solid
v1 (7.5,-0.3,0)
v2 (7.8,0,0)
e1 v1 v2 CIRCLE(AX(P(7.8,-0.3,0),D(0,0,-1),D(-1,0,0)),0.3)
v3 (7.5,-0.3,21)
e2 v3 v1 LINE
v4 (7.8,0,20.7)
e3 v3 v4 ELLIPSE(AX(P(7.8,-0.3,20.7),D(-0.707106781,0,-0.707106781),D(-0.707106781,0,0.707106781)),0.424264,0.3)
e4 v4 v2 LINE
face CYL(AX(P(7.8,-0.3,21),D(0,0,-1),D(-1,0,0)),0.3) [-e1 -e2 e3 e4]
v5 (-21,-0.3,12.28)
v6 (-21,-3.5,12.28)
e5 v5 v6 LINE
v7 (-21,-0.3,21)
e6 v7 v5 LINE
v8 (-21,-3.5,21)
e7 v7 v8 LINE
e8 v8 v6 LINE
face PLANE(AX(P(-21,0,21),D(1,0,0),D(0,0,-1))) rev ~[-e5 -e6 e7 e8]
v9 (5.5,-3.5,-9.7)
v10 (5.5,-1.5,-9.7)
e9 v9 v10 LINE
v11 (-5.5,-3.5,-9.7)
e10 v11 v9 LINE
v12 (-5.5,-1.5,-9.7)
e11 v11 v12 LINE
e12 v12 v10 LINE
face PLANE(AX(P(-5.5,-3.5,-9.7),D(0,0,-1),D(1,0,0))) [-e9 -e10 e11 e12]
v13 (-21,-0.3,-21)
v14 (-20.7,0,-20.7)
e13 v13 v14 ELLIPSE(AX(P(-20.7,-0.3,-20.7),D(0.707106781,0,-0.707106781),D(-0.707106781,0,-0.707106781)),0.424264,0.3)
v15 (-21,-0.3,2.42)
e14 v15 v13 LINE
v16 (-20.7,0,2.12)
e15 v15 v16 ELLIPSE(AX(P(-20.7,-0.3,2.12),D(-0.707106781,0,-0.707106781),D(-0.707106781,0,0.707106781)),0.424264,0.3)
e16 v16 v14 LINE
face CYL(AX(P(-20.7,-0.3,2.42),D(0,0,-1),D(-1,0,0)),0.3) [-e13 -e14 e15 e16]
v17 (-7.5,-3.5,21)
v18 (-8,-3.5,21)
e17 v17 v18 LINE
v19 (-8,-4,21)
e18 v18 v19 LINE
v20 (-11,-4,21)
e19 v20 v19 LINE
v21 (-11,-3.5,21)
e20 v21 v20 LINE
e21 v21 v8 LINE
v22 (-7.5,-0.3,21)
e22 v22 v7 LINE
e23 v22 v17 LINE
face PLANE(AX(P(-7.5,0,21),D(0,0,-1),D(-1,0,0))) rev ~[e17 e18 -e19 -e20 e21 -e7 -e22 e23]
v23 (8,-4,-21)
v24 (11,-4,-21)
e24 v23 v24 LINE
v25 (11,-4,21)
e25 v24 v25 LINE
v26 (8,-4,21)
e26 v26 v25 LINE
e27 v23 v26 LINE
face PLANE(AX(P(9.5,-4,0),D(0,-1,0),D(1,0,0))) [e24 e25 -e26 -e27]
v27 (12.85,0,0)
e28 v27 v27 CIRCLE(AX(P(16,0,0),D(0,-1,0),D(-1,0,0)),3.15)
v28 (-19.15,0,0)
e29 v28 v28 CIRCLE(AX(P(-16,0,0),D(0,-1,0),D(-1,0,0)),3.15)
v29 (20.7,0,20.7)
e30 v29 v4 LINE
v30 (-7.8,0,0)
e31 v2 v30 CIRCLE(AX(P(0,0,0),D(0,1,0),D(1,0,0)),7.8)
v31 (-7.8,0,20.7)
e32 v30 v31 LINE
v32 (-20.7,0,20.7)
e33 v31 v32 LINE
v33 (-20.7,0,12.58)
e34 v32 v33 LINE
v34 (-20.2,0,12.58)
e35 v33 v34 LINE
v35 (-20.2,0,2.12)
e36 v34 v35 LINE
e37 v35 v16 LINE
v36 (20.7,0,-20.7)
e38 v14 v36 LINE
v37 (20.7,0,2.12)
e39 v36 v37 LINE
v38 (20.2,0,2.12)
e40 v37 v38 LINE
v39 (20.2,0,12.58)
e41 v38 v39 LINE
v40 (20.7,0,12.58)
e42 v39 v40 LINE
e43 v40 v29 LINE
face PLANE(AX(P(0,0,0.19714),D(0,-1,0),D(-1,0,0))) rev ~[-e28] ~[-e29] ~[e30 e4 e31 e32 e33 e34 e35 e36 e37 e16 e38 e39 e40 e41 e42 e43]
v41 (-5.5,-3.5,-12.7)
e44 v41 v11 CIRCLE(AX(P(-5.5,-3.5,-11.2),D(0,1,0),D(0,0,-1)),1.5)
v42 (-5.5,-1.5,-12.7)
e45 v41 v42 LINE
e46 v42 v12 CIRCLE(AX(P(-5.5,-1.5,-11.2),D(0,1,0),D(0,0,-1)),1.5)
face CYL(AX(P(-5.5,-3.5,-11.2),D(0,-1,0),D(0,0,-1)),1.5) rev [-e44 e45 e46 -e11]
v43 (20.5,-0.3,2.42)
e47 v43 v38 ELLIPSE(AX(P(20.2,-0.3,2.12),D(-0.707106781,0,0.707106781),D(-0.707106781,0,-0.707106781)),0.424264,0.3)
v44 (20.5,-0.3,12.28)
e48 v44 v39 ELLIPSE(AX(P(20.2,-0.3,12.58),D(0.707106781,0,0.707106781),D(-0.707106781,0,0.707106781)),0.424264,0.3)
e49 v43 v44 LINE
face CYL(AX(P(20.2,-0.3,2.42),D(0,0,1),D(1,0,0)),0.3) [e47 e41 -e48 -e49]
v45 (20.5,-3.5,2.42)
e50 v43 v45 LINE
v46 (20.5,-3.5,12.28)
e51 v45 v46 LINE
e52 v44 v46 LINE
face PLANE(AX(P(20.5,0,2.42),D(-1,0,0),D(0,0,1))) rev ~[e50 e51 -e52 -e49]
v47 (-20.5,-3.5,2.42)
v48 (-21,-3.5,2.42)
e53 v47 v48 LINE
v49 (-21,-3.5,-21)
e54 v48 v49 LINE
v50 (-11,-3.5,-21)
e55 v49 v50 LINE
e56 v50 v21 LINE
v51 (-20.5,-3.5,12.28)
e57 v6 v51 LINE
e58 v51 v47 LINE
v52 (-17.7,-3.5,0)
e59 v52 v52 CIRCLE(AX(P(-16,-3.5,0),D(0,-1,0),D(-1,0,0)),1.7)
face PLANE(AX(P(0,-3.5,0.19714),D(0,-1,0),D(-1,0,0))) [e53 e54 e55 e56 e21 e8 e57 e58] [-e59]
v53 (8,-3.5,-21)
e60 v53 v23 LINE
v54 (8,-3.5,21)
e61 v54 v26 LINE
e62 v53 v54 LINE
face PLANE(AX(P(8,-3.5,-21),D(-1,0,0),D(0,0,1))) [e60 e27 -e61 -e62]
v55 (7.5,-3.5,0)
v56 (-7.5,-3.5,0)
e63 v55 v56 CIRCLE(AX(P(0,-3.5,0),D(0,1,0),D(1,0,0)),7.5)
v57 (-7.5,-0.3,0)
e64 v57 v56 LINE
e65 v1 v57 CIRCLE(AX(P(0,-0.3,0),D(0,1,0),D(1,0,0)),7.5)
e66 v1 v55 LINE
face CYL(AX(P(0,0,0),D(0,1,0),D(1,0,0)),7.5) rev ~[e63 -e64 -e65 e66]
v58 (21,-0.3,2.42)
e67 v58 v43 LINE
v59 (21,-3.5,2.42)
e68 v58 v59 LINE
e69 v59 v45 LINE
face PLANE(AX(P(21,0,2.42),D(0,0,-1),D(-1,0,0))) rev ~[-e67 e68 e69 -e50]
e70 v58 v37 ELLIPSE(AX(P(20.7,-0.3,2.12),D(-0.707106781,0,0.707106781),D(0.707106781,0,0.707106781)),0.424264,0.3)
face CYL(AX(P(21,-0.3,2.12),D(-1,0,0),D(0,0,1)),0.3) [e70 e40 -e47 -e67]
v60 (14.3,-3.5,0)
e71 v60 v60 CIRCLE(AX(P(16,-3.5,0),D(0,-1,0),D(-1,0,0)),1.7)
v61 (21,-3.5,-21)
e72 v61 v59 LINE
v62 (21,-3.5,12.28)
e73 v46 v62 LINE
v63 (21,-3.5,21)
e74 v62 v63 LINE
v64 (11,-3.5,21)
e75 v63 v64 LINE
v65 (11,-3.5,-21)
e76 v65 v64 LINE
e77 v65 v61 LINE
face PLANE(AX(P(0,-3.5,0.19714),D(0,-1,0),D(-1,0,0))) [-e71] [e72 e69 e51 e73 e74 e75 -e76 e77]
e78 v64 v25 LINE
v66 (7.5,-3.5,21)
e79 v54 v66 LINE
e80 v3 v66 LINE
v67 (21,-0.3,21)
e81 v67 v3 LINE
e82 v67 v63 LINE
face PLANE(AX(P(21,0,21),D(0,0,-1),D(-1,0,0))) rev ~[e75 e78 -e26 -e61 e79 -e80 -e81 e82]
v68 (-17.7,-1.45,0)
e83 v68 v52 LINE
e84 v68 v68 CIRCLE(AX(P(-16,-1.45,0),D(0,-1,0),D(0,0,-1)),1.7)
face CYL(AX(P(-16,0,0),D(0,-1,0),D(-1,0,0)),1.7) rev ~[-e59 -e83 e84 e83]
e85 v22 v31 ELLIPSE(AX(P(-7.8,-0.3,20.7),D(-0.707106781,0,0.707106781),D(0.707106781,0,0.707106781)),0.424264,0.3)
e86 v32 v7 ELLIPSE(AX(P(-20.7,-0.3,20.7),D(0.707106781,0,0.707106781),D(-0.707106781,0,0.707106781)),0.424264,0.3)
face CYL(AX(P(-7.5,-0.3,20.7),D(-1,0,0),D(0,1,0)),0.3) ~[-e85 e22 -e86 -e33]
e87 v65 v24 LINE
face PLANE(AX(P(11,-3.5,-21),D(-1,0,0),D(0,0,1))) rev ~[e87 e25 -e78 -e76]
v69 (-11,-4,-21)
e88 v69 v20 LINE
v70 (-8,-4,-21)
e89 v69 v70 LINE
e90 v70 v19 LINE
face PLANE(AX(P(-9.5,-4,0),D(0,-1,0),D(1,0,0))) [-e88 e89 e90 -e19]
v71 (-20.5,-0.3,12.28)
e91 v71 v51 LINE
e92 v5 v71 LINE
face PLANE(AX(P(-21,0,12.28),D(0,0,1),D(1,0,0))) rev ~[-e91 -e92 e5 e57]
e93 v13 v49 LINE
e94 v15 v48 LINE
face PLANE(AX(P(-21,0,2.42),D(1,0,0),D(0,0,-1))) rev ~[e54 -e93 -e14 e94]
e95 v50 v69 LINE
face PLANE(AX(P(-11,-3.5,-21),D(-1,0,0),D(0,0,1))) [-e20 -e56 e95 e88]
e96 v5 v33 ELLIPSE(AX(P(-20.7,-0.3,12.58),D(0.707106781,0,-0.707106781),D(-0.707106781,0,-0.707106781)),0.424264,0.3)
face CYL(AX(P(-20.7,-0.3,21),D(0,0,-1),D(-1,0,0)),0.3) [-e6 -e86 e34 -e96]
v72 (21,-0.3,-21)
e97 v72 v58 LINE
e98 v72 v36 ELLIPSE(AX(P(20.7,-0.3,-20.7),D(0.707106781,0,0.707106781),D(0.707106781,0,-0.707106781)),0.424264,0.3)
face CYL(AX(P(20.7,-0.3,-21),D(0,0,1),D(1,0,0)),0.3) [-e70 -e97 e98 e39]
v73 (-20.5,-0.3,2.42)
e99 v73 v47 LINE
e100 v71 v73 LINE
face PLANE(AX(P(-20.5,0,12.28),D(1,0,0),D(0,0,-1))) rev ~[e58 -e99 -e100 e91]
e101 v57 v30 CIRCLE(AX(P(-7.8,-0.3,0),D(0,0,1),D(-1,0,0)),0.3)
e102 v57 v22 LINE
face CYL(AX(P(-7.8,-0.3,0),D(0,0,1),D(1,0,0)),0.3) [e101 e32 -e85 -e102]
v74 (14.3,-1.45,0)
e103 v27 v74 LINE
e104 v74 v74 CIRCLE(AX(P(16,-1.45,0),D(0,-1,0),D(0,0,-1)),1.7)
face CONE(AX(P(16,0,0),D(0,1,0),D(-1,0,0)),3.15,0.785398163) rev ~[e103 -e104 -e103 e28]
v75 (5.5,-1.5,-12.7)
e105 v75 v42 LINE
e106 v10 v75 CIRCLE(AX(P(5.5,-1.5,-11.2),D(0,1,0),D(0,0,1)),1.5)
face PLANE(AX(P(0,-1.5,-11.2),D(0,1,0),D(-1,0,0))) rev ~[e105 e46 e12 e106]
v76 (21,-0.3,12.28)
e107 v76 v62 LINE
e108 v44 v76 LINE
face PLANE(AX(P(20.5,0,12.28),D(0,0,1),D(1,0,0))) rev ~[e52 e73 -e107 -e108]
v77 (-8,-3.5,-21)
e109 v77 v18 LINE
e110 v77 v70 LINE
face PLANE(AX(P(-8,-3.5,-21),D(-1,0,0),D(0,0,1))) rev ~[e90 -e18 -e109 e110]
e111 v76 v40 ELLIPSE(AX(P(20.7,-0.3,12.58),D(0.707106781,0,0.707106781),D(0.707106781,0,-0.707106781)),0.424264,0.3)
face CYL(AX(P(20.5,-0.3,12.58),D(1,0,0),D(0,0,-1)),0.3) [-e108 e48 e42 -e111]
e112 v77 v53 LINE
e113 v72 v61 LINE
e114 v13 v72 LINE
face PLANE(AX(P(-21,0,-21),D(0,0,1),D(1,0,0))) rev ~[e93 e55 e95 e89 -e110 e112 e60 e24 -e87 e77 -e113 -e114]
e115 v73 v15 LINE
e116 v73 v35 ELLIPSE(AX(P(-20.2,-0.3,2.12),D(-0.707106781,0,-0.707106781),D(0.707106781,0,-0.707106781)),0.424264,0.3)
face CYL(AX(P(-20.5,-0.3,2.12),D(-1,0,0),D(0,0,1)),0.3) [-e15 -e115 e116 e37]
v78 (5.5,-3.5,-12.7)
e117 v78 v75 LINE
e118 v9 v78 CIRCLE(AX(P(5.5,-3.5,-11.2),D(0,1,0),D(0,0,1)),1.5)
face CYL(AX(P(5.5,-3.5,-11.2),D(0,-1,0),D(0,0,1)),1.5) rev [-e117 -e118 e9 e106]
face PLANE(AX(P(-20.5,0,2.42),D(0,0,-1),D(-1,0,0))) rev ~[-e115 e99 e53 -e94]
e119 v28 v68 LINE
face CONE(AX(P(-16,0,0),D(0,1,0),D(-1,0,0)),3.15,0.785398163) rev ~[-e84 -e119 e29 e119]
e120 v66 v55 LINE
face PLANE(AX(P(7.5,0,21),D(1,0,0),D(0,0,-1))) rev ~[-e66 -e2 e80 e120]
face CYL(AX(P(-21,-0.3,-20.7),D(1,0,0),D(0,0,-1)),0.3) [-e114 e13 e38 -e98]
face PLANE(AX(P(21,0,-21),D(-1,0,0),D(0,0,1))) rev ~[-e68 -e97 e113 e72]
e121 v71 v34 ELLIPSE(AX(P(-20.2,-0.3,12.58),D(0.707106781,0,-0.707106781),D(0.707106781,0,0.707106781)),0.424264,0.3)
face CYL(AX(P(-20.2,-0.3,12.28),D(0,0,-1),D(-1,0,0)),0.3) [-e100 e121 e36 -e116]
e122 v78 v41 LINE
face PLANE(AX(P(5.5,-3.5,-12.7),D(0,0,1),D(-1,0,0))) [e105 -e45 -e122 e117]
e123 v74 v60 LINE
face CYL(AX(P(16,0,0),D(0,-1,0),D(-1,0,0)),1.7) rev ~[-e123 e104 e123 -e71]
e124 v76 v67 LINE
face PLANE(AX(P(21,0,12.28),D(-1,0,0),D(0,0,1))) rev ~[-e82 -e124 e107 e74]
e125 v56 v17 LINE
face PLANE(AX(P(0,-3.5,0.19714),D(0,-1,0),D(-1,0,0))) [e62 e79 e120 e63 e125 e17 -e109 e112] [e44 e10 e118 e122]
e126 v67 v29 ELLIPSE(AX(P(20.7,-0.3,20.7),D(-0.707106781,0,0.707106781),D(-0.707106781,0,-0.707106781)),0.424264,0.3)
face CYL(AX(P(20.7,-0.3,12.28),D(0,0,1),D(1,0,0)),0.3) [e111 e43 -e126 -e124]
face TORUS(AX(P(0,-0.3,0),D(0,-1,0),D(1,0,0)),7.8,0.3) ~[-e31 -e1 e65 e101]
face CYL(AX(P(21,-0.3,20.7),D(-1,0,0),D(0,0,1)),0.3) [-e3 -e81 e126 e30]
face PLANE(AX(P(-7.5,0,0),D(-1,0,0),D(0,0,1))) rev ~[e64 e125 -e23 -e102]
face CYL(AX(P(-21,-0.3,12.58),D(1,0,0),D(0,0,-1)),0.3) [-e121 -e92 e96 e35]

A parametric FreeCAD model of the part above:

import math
import FreeCAD as App
import Part
import Sketcher
Q = App.Units.Quantity


def edges_at(feature, points):
    """Names of the edges that pass closest to the given points."""
    edges = feature.Shape.Edges
    near = lambda p: min(range(len(edges)), key=lambda i: edges[i].distToShape(Part.Vertex(*p))[0])
    return sorted({f"Edge{near(p) + 1}" for p in points})

doc = App.newDocument("Part")
params = doc.addObject("Spreadsheet::Sheet", "Params")
for row, (alias, value) in enumerate([
    ("sketch1_radius", "7.5 mm"),
    ("sketch1_width", "42 mm"),
    ("sketch1_height", "21 mm"),
    ("sketch1_width2", "0.5 mm"),
    ("sketch1_height2", "8.72 mm"),
    ("pad1_length", "3.5 mm"),
    ("sketch2_diameter", "3.4 mm"),
    ("hole_diameter", "3.4 mm"),
    ("hole_csink_diameter", "6.3 mm"),
    ("fillet_radius", "0.3 mm"),
    ("sketch3_width", "3 mm"),
    ("sketch3_height", "42 mm"),
    ("pad2_length", "0.5 mm"),
    ("sketch4_radius", "1.5 mm"),
    ("sketch4_width", "11 mm"),
    ("pocket1_length", "2 mm"),
], start=1):
    params.set(f"A{row}", alias)
    params.set(f"B{row}", "=" + value)
    params.setAlias(f"B{row}", alias)

body = doc.addObject("PartDesign::Body", "Body")

sketch1 = body.newObject("Sketcher::SketchObject", "Sketch")
sketch1.AttachmentSupport = (doc.getObject("XZ_Plane"), [""])
sketch1.MapMode = "FlatFace"
sketch1.addGeometry(Part.LineSegment(App.Vector(-7.5, 21, 0), App.Vector(-7.5, 0, 0)), False)
sketch1.addGeometry(Part.ArcOfCircle(Part.Circle(App.Vector(0, 0, 0), App.Vector(0, 0, 1), 7.5), math.radians(180), math.radians(360)), False)
sketch1.addGeometry(Part.LineSegment(App.Vector(7.5, 0, 0), App.Vector(7.5, 21, 0)), False)
sketch1.addGeometry(Part.LineSegment(App.Vector(7.5, 21, 0), App.Vector(21, 21, 0)), False)
sketch1.addGeometry(Part.LineSegment(App.Vector(21, 21, 0), App.Vector(21, 12.28, 0)), False)
sketch1.addGeometry(Part.LineSegment(App.Vector(21, 12.28, 0), App.Vector(20.5, 12.28, 0)), False)
sketch1.addGeometry(Part.LineSegment(App.Vector(20.5, 12.28, 0), App.Vector(20.5, 2.42, 0)), False)
sketch1.addGeometry(Part.LineSegment(App.Vector(20.5, 2.42, 0), App.Vector(21, 2.42, 0)), False)
sketch1.addGeometry(Part.LineSegment(App.Vector(21, 2.42, 0), App.Vector(21, -21, 0)), False)
sketch1.addGeometry(Part.LineSegment(App.Vector(21, -21, 0), App.Vector(-21, -21, 0)), False)
sketch1.addGeometry(Part.LineSegment(App.Vector(-21, -21, 0), App.Vector(-21, 2.42, 0)), False)
sketch1.addGeometry(Part.LineSegment(App.Vector(-21, 2.42, 0), App.Vector(-20.5, 2.42, 0)), False)
sketch1.addGeometry(Part.LineSegment(App.Vector(-20.5, 2.42, 0), App.Vector(-20.5, 12.28, 0)), False)
sketch1.addGeometry(Part.LineSegment(App.Vector(-20.5, 12.28, 0), App.Vector(-21, 12.28, 0)), False)
sketch1.addGeometry(Part.LineSegment(App.Vector(-21, 12.28, 0), App.Vector(-21, 21, 0)), False)
sketch1.addGeometry(Part.LineSegment(App.Vector(-21, 21, 0), App.Vector(-7.5, 21, 0)), False)
sketch1.addConstraint(Sketcher.Constraint("Tangent", 0, 2, 1, 1))
sketch1.addConstraint(Sketcher.Constraint("Tangent", 1, 2, 2, 1))
sketch1.addConstraint(Sketcher.Constraint("Coincident", 2, 2, 3, 1))
sketch1.addConstraint(Sketcher.Constraint("Coincident", 3, 2, 4, 1))
sketch1.addConstraint(Sketcher.Constraint("Coincident", 4, 2, 5, 1))
sketch1.addConstraint(Sketcher.Constraint("Coincident", 5, 2, 6, 1))
sketch1.addConstraint(Sketcher.Constraint("Coincident", 6, 2, 7, 1))
sketch1.addConstraint(Sketcher.Constraint("Coincident", 7, 2, 8, 1))
sketch1.addConstraint(Sketcher.Constraint("Coincident", 8, 2, 9, 1))
sketch1.addConstraint(Sketcher.Constraint("Coincident", 9, 2, 10, 1))
sketch1.addConstraint(Sketcher.Constraint("Coincident", 10, 2, 11, 1))
sketch1.addConstraint(Sketcher.Constraint("Coincident", 11, 2, 12, 1))
sketch1.addConstraint(Sketcher.Constraint("Coincident", 12, 2, 13, 1))
sketch1.addConstraint(Sketcher.Constraint("Coincident", 13, 2, 14, 1))
sketch1.addConstraint(Sketcher.Constraint("Coincident", 14, 2, 15, 1))
sketch1.addConstraint(Sketcher.Constraint("Coincident", 15, 2, 0, 1))
sketch1.addConstraint(Sketcher.Constraint("Vertical", 0))
sketch1.addConstraint(Sketcher.Constraint("Vertical", 2))
sketch1.addConstraint(Sketcher.Constraint("Horizontal", 3))
sketch1.addConstraint(Sketcher.Constraint("Vertical", 4))
sketch1.addConstraint(Sketcher.Constraint("Horizontal", 5))
sketch1.addConstraint(Sketcher.Constraint("Vertical", 6))
sketch1.addConstraint(Sketcher.Constraint("Horizontal", 7))
sketch1.addConstraint(Sketcher.Constraint("Vertical", 8))
sketch1.addConstraint(Sketcher.Constraint("Horizontal", 9))
sketch1.addConstraint(Sketcher.Constraint("Vertical", 10))
sketch1.addConstraint(Sketcher.Constraint("Horizontal", 11))
sketch1.addConstraint(Sketcher.Constraint("Vertical", 12))
sketch1.addConstraint(Sketcher.Constraint("Horizontal", 13))
sketch1.addConstraint(Sketcher.Constraint("Vertical", 14))
sketch1.addConstraint(Sketcher.Constraint("Horizontal", 15))
sketch1.addConstraint(Sketcher.Constraint("Coincident", 1, 3, -1, 1))
sketch1.addConstraint(Sketcher.Constraint("Symmetric", 3, 2, 9, 2, -1, 1))
sketch1.addConstraint(Sketcher.Constraint("Symmetric", 8, 2, 14, 2, -1, 1))
sketch1.addConstraint(Sketcher.Constraint("Symmetric", 7, 2, 10, 2, -2))
sketch1.addConstraint(Sketcher.Constraint("Symmetric", 5, 2, 12, 2, -2))
sketch1.addConstraint(Sketcher.Constraint("Radius", 1, Q("7.5 mm")))
sketch1.addConstraint(Sketcher.Constraint("DistanceX", 9, 2, 9, 1, Q("42 mm")))
sketch1.addConstraint(Sketcher.Constraint("DistanceY", 0, 2, 0, 1, Q("21 mm")))
sketch1.addConstraint(Sketcher.Constraint("DistanceX", 5, 2, 5, 1, Q("0.5 mm")))
sketch1.addConstraint(Sketcher.Constraint("DistanceY", 4, 2, 4, 1, Q("8.72 mm")))
sketch1.addConstraint(Sketcher.Constraint("DistanceY", 6, 2, 6, 1, Q("9.86 mm")))
sketch1.setExpression("Constraints[36]", "Params.sketch1_radius")
sketch1.setExpression("Constraints[37]", "Params.sketch1_width")
sketch1.setExpression("Constraints[38]", "Params.sketch1_height")
sketch1.setExpression("Constraints[39]", "Params.sketch1_width2")
sketch1.setExpression("Constraints[40]", "Params.sketch1_height2")
pad1 = body.newObject("PartDesign::Pad", "Pad")
pad1.Profile = sketch1
pad1.setExpression("Length", "Params.pad1_length")

sketch2 = body.newObject("Sketcher::SketchObject", "Sketch001")
sketch2.AttachmentSupport = (doc.getObject("XZ_Plane"), [""])
sketch2.MapMode = "FlatFace"
sketch2.addGeometry(Part.Circle(App.Vector(-16, 0, 0), App.Vector(0, 0, 1), 1.7), False)
sketch2.addGeometry(Part.Circle(App.Vector(16, 0, 0), App.Vector(0, 0, 1), 1.7), False)
sketch2.addConstraint(Sketcher.Constraint("Equal", 0, 1))
sketch2.addConstraint(Sketcher.Constraint("Symmetric", 0, 3, 1, 3, -1, 1))
sketch2.addConstraint(Sketcher.Constraint("PointOnObject", 0, 3, -1))
sketch2.addConstraint(Sketcher.Constraint("Diameter", 0, Q("3.4 mm")))
sketch2.addConstraint(Sketcher.Constraint("DistanceX", 0, 3, -1, 1, Q("16 mm")))
sketch2.setExpression("Constraints[3]", "Params.sketch2_diameter")
doc.recompute()
hole = body.newObject("PartDesign::Hole", "Hole")
hole.Profile = sketch2
hole.ThreadType = "None"
hole.setExpression("Diameter", "Params.hole_diameter")
hole.DepthType = "ThroughAll"
hole.HoleCutType = "Countersink"
hole.setExpression("HoleCutDiameter", "Params.hole_csink_diameter")
hole.HoleCutCountersinkAngle = 90
hole.Reversed = True
doc.recompute()

fillet = body.newObject("PartDesign::Fillet", "Fillet")
fillet.Base = (hole, edges_at(hole, [
    (14.25, 0, 21),
    (7.5, 0, 10.5),
    (0, 0, -7.5),
    (-7.5, 0, 10.5),
    (-14.25, 0, 21),
    (-21, 0, 16.64),
    (-20.75, 0, 12.28),
    (-20.5, 0, 7.35),
    (-20.75, 0, 2.42),
    (-21, 0, -9.29),
    (0, 0, -21),
    (21, 0, -9.29),
    (20.75, 0, 2.42),
    (20.5, 0, 7.35),
    (20.75, 0, 12.28),
    (21, 0, 16.64),
]))
fillet.setExpression("Radius", "Params.fillet_radius")

sketch3 = body.newObject("Sketcher::SketchObject", "Sketch002")
sketch3.AttachmentSupport = (doc.getObject("XZ_Plane"), [""])
sketch3.MapMode = "FlatFace"
sketch3.AttachmentOffset = App.Placement(App.Vector(0, 0, 3.5), App.Rotation())
sketch3.addGeometry(Part.LineSegment(App.Vector(8, 21, 0), App.Vector(8, -21, 0)), False)
sketch3.addGeometry(Part.LineSegment(App.Vector(8, -21, 0), App.Vector(11, -21, 0)), False)
sketch3.addGeometry(Part.LineSegment(App.Vector(11, -21, 0), App.Vector(11, 21, 0)), False)
sketch3.addGeometry(Part.LineSegment(App.Vector(11, 21, 0), App.Vector(8, 21, 0)), False)
sketch3.addGeometry(Part.LineSegment(App.Vector(-11, 21, 0), App.Vector(-11, -21, 0)), False)
sketch3.addGeometry(Part.LineSegment(App.Vector(-11, -21, 0), App.Vector(-8, -21, 0)), False)
sketch3.addGeometry(Part.LineSegment(App.Vector(-8, -21, 0), App.Vector(-8, 21, 0)), False)
sketch3.addGeometry(Part.LineSegment(App.Vector(-8, 21, 0), App.Vector(-11, 21, 0)), False)
sketch3.addConstraint(Sketcher.Constraint("Coincident", 0, 2, 1, 1))
sketch3.addConstraint(Sketcher.Constraint("Coincident", 1, 2, 2, 1))
sketch3.addConstraint(Sketcher.Constraint("Coincident", 2, 2, 3, 1))
sketch3.addConstraint(Sketcher.Constraint("Coincident", 3, 2, 0, 1))
sketch3.addConstraint(Sketcher.Constraint("Coincident", 4, 2, 5, 1))
sketch3.addConstraint(Sketcher.Constraint("Coincident", 5, 2, 6, 1))
sketch3.addConstraint(Sketcher.Constraint("Coincident", 6, 2, 7, 1))
sketch3.addConstraint(Sketcher.Constraint("Coincident", 7, 2, 4, 1))
sketch3.addConstraint(Sketcher.Constraint("Vertical", 0))
sketch3.addConstraint(Sketcher.Constraint("Horizontal", 1))
sketch3.addConstraint(Sketcher.Constraint("Vertical", 2))
sketch3.addConstraint(Sketcher.Constraint("Horizontal", 3))
sketch3.addConstraint(Sketcher.Constraint("Vertical", 4))
sketch3.addConstraint(Sketcher.Constraint("Horizontal", 5))
sketch3.addConstraint(Sketcher.Constraint("Vertical", 6))
sketch3.addConstraint(Sketcher.Constraint("Horizontal", 7))
sketch3.addConstraint(Sketcher.Constraint("Symmetric", 2, 2, 4, 2, -1, 1))
sketch3.addConstraint(Sketcher.Constraint("Symmetric", 0, 2, 6, 2, -1, 1))
sketch3.addConstraint(Sketcher.Constraint("Horizontal", 1, 2, 4, 2))
sketch3.addConstraint(Sketcher.Constraint("DistanceX", 1, 1, 1, 2, Q("3 mm")))
sketch3.addConstraint(Sketcher.Constraint("DistanceY", 0, 2, 0, 1, Q("42 mm")))
sketch3.addConstraint(Sketcher.Constraint("DistanceX", -1, 1, 0, 2, Q("8 mm")))
sketch3.setExpression("Constraints[19]", "Params.sketch3_width")
sketch3.setExpression("Constraints[20]", "Params.sketch3_height")
pad2 = body.newObject("PartDesign::Pad", "Pad001")
pad2.Profile = sketch3
pad2.setExpression("Length", "Params.pad2_length")

sketch4 = body.newObject("Sketcher::SketchObject", "Sketch003")
sketch4.AttachmentSupport = (doc.getObject("XZ_Plane"), [""])
sketch4.MapMode = "FlatFace"
sketch4.AttachmentOffset = App.Placement(App.Vector(0, 0, 3.5), App.Rotation())
sketch4.addGeometry(Part.LineSegment(App.Vector(5.5, -9.7, 0), App.Vector(-5.5, -9.7, 0)), False)
sketch4.addGeometry(Part.ArcOfCircle(Part.Circle(App.Vector(-5.5, -11.2, 0), App.Vector(0, 0, 1), 1.5), math.radians(90), math.radians(270)), False)
sketch4.addGeometry(Part.LineSegment(App.Vector(-5.5, -12.7, 0), App.Vector(5.5, -12.7, 0)), False)
sketch4.addGeometry(Part.ArcOfCircle(Part.Circle(App.Vector(5.5, -11.2, 0), App.Vector(0, 0, 1), 1.5), math.radians(-90), math.radians(90)), False)
sketch4.addConstraint(Sketcher.Constraint("Tangent", 0, 2, 1, 1))
sketch4.addConstraint(Sketcher.Constraint("Tangent", 1, 2, 2, 1))
sketch4.addConstraint(Sketcher.Constraint("Tangent", 2, 2, 3, 1))
sketch4.addConstraint(Sketcher.Constraint("Tangent", 3, 2, 0, 1))
sketch4.addConstraint(Sketcher.Constraint("Horizontal", 0))
sketch4.addConstraint(Sketcher.Constraint("Horizontal", 2))
sketch4.addConstraint(Sketcher.Constraint("Radius", 1, Q("1.5 mm")))
sketch4.addConstraint(Sketcher.Constraint("DistanceX", 0, 2, 0, 1, Q("11 mm")))
sketch4.addConstraint(Sketcher.Constraint("DistanceX", 1, 3, -1, 1, Q("5.5 mm")))
sketch4.addConstraint(Sketcher.Constraint("DistanceY", 1, 3, -1, 1, Q("11.2 mm")))
sketch4.setExpression("Constraints[6]", "Params.sketch4_radius")
sketch4.setExpression("Constraints[7]", "Params.sketch4_width")
pocket1 = body.newObject("PartDesign::Pocket", "Pocket")
pocket1.Profile = sketch4
pocket1.setExpression("Length", "Params.pocket1_length")

doc.recompute()
